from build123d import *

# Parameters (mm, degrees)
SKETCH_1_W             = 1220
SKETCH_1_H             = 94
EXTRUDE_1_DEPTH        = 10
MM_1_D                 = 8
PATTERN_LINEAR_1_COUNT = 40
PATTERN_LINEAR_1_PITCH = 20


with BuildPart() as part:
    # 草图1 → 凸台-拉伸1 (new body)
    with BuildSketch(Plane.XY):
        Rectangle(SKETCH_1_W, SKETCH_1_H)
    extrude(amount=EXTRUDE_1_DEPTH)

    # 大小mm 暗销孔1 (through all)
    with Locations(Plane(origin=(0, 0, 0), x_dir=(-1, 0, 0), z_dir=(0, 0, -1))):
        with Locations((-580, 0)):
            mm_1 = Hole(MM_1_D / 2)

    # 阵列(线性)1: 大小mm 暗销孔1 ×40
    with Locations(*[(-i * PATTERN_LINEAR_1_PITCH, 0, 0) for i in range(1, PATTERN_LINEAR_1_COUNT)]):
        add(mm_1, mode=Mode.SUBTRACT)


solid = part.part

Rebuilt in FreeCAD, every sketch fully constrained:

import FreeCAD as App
import Part
import Sketcher

V = App.Vector
Q = App.Units.Quantity

doc = App.newDocument("Part")
body = doc.addObject("PartDesign::Body", "Body")

# Sketch on XY plane
sketch1 = body.newObject("Sketcher::SketchObject", "Sketch")
sketch1.AttachmentSupport = (doc.getObject("XY_Plane"), [""])
sketch1.MapMode = "FlatFace"
sketch1.addGeometry(Part.LineSegment(V(-610, 47, 0), V(-610, -47, 0)), False)
sketch1.addGeometry(Part.LineSegment(V(-610, -47, 0), V(610, -47, 0)), False)
sketch1.addGeometry(Part.LineSegment(V(610, -47, 0), V(610, 47, 0)), False)
sketch1.addGeometry(Part.LineSegment(V(610, 47, 0), V(-610, 47, 0)), False)
sketch1.addConstraint(Sketcher.Constraint("Coincident", 0, 2, 1, 1))
sketch1.addConstraint(Sketcher.Constraint("Coincident", 1, 2, 2, 1))
sketch1.addConstraint(Sketcher.Constraint("Coincident", 2, 2, 3, 1))
sketch1.addConstraint(Sketcher.Constraint("Coincident", 3, 2, 0, 1))
sketch1.addConstraint(Sketcher.Constraint("Vertical", 0))
sketch1.addConstraint(Sketcher.Constraint("Horizontal", 1))
sketch1.addConstraint(Sketcher.Constraint("Vertical", 2))
sketch1.addConstraint(Sketcher.Constraint("Horizontal", 3))
sketch1.addConstraint(Sketcher.Constraint("Symmetric", 0, 2, 2, 2, -1, 1))
sketch1.addConstraint(Sketcher.Constraint("DistanceX", 1, 1, 1, 2, Q("1220 mm")))
sketch1.addConstraint(Sketcher.Constraint("DistanceY", 0, 2, 0, 1, Q("94 mm")))
pad1 = body.newObject("PartDesign::Pad", "Pad")
pad1.Profile = sketch1
pad1.Length = 10

# Sketch on XY plane
sketch2 = body.newObject("Sketcher::SketchObject", "Sketch001")
sketch2.AttachmentSupport = (doc.getObject("XY_Plane"), [""])
sketch2.MapMode = "FlatFace"
sketch2.addGeometry(Part.Circle(V(580, 0, 0), V(0, 0, 1), 4), False)
sketch2.addConstraint(Sketcher.Constraint("PointOnObject", 0, 3, -1))
sketch2.addConstraint(Sketcher.Constraint("Diameter", 0, Q("8 mm")))
sketch2.addConstraint(Sketcher.Constraint("DistanceX", -1, 1, 0, 3, Q("580 mm")))
doc.recompute()
hole = body.newObject("PartDesign::Hole", "Hole")
hole.Profile = sketch2
hole.ThreadType = "None"
hole.Diameter = 8
hole.DepthType = "ThroughAll"
hole.Reversed = True
doc.recompute()

linearpattern = body.newObject("PartDesign::LinearPattern", "LinearPattern")
linearpattern.Originals = [hole]
linearpattern.Direction = (doc.getObject("X_Axis"), [""])
linearpattern.Mode = "offset"
linearpattern.Offset = 20
linearpattern.Occurrences = 40
linearpattern.Reversed = True
body.Tip = linearpattern

doc.recompute()
